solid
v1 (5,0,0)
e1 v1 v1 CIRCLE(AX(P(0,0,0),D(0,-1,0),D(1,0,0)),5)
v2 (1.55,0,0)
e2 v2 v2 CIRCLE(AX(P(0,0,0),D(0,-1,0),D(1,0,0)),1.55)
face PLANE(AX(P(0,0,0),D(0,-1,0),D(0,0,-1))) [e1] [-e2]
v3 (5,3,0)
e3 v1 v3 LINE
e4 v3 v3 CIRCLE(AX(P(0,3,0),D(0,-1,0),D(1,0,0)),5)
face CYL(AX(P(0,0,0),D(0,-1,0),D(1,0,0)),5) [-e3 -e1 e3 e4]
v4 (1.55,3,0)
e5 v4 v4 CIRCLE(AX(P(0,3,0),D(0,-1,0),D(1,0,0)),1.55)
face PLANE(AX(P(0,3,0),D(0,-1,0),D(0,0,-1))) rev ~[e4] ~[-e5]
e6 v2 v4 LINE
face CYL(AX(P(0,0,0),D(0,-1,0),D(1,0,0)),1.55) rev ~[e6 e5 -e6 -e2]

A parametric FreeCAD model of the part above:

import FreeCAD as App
import Part
import Sketcher

V = App.Vector

doc = App.newDocument("Part")
body = doc.addObject("PartDesign::Body", "Body")

sketch1 = body.newObject("Sketcher::SketchObject", "Sketch")
sketch1.AttachmentSupport = (doc.getObject("XZ_Plane"), [""])
sketch1.MapMode = "FlatFace"
sketch1.addGeometry(Part.Circle(V(0, 0, 0), V(0, 0, 1), 5), False)
sketch1.addGeometry(Part.Circle(V(0, 0, 0), V(0, 0, 1), 1.6), False)
sketch1.addConstraint(Sketcher.Constraint("Coincident", 0, 3, -1, 1))
sketch1.addConstraint(Sketcher.Constraint("Coincident", 1, 3, -1, 1))
sketch1.addConstraint(Sketcher.Constraint("Diameter", 0, 10.0))
sketch1.addConstraint(Sketcher.Constraint("Diameter", 1, 3.1))
pad1 = body.newObject("PartDesign::Pad", "Pad")
pad1.Profile = sketch1
pad1.Length = 3
pad1.Reversed = True

doc.recompute()
